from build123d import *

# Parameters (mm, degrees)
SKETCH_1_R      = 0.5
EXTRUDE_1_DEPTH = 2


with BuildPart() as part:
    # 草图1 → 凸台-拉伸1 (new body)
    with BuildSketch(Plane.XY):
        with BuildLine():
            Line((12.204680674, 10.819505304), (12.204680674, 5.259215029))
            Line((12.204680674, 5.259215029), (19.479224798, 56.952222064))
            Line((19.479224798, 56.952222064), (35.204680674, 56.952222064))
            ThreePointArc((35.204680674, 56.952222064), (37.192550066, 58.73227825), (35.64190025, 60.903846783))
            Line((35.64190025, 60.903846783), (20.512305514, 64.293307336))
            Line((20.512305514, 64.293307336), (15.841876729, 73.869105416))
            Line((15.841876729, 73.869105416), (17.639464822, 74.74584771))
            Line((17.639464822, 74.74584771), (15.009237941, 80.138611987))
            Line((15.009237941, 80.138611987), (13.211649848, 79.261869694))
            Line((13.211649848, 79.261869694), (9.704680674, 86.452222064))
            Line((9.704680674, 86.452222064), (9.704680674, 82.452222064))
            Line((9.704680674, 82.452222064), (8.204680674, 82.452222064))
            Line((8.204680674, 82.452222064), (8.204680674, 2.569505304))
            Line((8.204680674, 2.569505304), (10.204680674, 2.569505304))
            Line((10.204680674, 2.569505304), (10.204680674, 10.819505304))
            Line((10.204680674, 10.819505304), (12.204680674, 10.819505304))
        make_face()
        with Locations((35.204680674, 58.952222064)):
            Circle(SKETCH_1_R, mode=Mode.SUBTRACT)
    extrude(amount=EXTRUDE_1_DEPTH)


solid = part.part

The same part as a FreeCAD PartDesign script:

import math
import FreeCAD as App
import Part
import Sketcher

V = App.Vector
Q = App.Units.Quantity

doc = App.newDocument("Part")
body = doc.addObject("PartDesign::Body", "Body")

sketch1 = doc.addObject("Sketcher::SketchObject", "Sketch")
body.addObject(sketch1)
sketch1.AttachmentSupport = (doc.XY_Plane, [""])
sketch1.MapMode = "FlatFace"
sketch1.addGeometry([
    Part.LineSegment(V(12.2, 10.8, 0), V(12.2, 5.3, 0)),
    Part.LineSegment(V(12.2, 5.3, 0), V(19.5, 57, 0)),
    Part.LineSegment(V(19.5, 57, 0), V(35.2, 57, 0)),
    Part.ArcOfCircle(Part.Circle(V(35.2, 59, 0), V(0, 0, 1), 2), math.radians(-90), math.radians(77)),
    Part.LineSegment(V(35.6, 60.9, 0), V(20.5, 64.3, 0)),
    Part.LineSegment(V(20.5, 64.3, 0), V(15.8, 73.9, 0)),
    Part.LineSegment(V(15.8, 73.9, 0), V(17.6, 74.7, 0)),
    Part.LineSegment(V(17.6, 74.7, 0), V(15, 80.1, 0)),
    Part.LineSegment(V(15, 80.1, 0), V(13.2, 79.3, 0)),
    Part.LineSegment(V(13.2, 79.3, 0), V(9.7, 86.5, 0)),
    Part.LineSegment(V(9.7, 86.5, 0), V(9.7, 82.5, 0)),
    Part.LineSegment(V(9.7, 82.5, 0), V(8.2, 82.5, 0)),
    Part.LineSegment(V(8.2, 82.5, 0), V(8.2, 2.6, 0)),
    Part.LineSegment(V(8.2, 2.6, 0), V(10.2, 2.6, 0)),
    Part.LineSegment(V(10.2, 2.6, 0), V(10.2, 10.8, 0)),
    Part.LineSegment(V(10.2, 10.8, 0), V(12.2, 10.8, 0)),
    Part.Circle(V(35.2, 59, 0), V(0, 0, 1), 0.5),
], False)
sketch1.addConstraint([
    Sketcher.Constraint("Coincident", 0, 2, 1, 1),
    Sketcher.Constraint("Coincident", 1, 2, 2, 1),
    Sketcher.Constraint("Tangent", 2, 2, 3, 1),
    Sketcher.Constraint("Tangent", 3, 2, 4, 1),
    Sketcher.Constraint("Coincident", 4, 2, 5, 1),
    Sketcher.Constraint("Coincident", 5, 2, 6, 1),
    Sketcher.Constraint("Coincident", 6, 2, 7, 1),
    Sketcher.Constraint("Coincident", 7, 2, 8, 1),
    Sketcher.Constraint("Coincident", 8, 2, 9, 1),
    Sketcher.Constraint("Coincident", 9, 2, 10, 1),
    Sketcher.Constraint("Coincident", 10, 2, 11, 1),
    Sketcher.Constraint("Coincident", 11, 2, 12, 1),
    Sketcher.Constraint("Coincident", 12, 2, 13, 1),
    Sketcher.Constraint("Coincident", 13, 2, 14, 1),
    Sketcher.Constraint("Coincident", 14, 2, 15, 1),
    Sketcher.Constraint("Coincident", 15, 2, 0, 1),
    Sketcher.Constraint("Vertical", 0),
    Sketcher.Constraint("Horizontal", 2),
    Sketcher.Constraint("Vertical", 10),
    Sketcher.Constraint("Horizontal", 11),
    Sketcher.Constraint("Vertical", 12),
    Sketcher.Constraint("Horizontal", 13),
    Sketcher.Constraint("Vertical", 14),
    Sketcher.Constraint("Horizontal", 15),
    Sketcher.Constraint("Coincident", 16, 3, 3, 3),
    Sketcher.Constraint("Perpendicular", 5, 6),
    Sketcher.Constraint("Perpendicular", 6, 7),
    Sketcher.Constraint("Perpendicular", 7, 8),
    Sketcher.Constraint("Perpendicular", 8, 9),
    Sketcher.Constraint("Equal", 13, 15),
    Sketcher.Constraint("Equal", 6, 8),
    Sketcher.Constraint("Diameter", 16, Q("1 mm")),
    Sketcher.Constraint("Radius", 3, Q("2 mm")),
    Sketcher.Constraint("DistanceX", 13, 1, 13, 2, Q("2 mm")),
    Sketcher.Constraint("DistanceY", 10, 2, 10, 1, Q("4 mm")),
    Sketcher.Constraint("Angle", 5, Q("116 deg")),
    Sketcher.Constraint("Distance", 6, Q("2 mm")),
    Sketcher.Constraint("Distance", 7, Q("6 mm")),
    Sketcher.Constraint("Distance", 9, Q("8 mm")),
    Sketcher.Constraint("DistanceX", 11, 2, 11, 1, Q("1.5 mm")),
    Sketcher.Constraint("DistanceX", 0, 2, 3, 3, Q("23 mm")),
    Sketcher.Constraint("DistanceY", 14, 1, 14, 2, Q("8.25 mm")),
    Sketcher.Constraint("DistanceY", 3, 2, 6, 2, Q("13.842001 mm")),
    Sketcher.Constraint("DistanceY", 0, 2, 0, 1, Q("5.56029 mm")),
    Sketcher.Constraint("DistanceX", -1, 1, 3, 2, Q("35.6419 mm")),
    Sketcher.Constraint("DistanceY", 4, 2, 5, 2, Q("9.575798 mm")),
    Sketcher.Constraint("DistanceX", 2, 1, 2, 2, Q("15.725456 mm")),
    Sketcher.Constraint("DistanceY", 12, 2, 12, 1, Q("79.882717 mm")),
    Sketcher.Constraint("DistanceY", -1, 1, 7, 2, Q("80.138612 mm")),
])
pad1 = doc.addObject("PartDesign::Pad", "Pad")
body.addObject(pad1)
pad1.Profile = sketch1
pad1.Length = 2

doc.recompute()
